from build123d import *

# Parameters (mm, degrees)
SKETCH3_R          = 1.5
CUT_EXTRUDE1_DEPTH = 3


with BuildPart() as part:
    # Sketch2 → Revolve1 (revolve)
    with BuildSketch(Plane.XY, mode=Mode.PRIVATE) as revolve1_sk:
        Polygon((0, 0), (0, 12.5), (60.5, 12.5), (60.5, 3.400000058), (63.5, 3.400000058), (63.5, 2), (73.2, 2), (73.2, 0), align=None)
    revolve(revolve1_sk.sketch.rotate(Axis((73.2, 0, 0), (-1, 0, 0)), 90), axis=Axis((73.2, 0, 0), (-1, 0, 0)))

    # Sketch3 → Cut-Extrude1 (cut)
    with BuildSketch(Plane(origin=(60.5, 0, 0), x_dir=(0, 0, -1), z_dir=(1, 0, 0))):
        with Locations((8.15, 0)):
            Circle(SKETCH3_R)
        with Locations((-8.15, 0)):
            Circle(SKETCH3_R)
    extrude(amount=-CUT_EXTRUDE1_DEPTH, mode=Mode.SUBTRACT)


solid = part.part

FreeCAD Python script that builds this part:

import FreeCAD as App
import Part
import Sketcher
from FreeCAD import Vector


def add_polygon(sketch, points):
    """Adds a closed chain of lines whose ends are joined by coincident constraints."""
    first, n = sketch.GeometryCount, len(points)
    for a, b in zip(points, points[1:] + points[:1]):
        sketch.addGeometry(Part.LineSegment(App.Vector(*a, 0), App.Vector(*b, 0)), False)
    for i in range(n):
        sketch.addConstraint(Sketcher.Constraint("Coincident", first + i, 2, first + (i + 1) % n, 1))

doc = App.newDocument("Part")
body = doc.addObject("PartDesign::Body", "Body")

sketch1 = doc.addObject("Sketcher::SketchObject", "Sketch")
body.addObject(sketch1)
sketch1.AttachmentSupport = (doc.XY_Plane, [""])
sketch1.MapMode = "FlatFace"
add_polygon(sketch1, [(0, 12.5), (0, 0), (73.2, 0), (73.2, 2), (63.5, 2), (63.5, 3.4), (60.5, 3.4), (60.5, 12.5)])
sketch1.addConstraint(Sketcher.Constraint("Vertical", 0))
sketch1.addConstraint(Sketcher.Constraint("Horizontal", 1))
sketch1.addConstraint(Sketcher.Constraint("Vertical", 2))
sketch1.addConstraint(Sketcher.Constraint("Horizontal", 3))
sketch1.addConstraint(Sketcher.Constraint("Vertical", 4))
sketch1.addConstraint(Sketcher.Constraint("Horizontal", 5))
sketch1.addConstraint(Sketcher.Constraint("Vertical", 6))
sketch1.addConstraint(Sketcher.Constraint("Horizontal", 7))
sketch1.addConstraint(Sketcher.Constraint("Coincident", 0, 2, -1, 1))
sketch1.addConstraint(Sketcher.Constraint("DistanceX", 5, 2, 5, 1, 3.0))
sketch1.addConstraint(Sketcher.Constraint("DistanceY", 2, 1, 2, 2, 2.0))
sketch1.addConstraint(Sketcher.Constraint("DistanceX", 1, 1, 1, 2, 73.2))
sketch1.addConstraint(Sketcher.Constraint("DistanceX", 3, 2, 3, 1, 9.7))
sketch1.addConstraint(Sketcher.Constraint("DistanceY", 0, 2, 0, 1, 12.5))
sketch1.addConstraint(Sketcher.Constraint("DistanceY", 4, 1, 4, 2, 1.4))
revolution = doc.addObject("PartDesign::Revolution", "Revolution")
body.addObject(revolution)
revolution.Profile = sketch1
revolution.ReferenceAxis = (sketch1, ["H_Axis"])
revolution.Angle = 360

sketch2 = doc.addObject("Sketcher::SketchObject", "Sketch001")
body.addObject(sketch2)
sketch2.AttachmentSupport = (doc.YZ_Plane, [""])
sketch2.MapMode = "FlatFace"
sketch2.AttachmentOffset = App.Placement(Vector(0, 0, 60.5), App.Rotation())
sketch2.addGeometry(Part.Circle(Vector(0, -8.15, 0), Vector(0, 0, 1), 1.5), False)
sketch2.addGeometry(Part.Circle(Vector(0, 8.15, 0), Vector(0, 0, 1), 1.5), False)
sketch2.addConstraint(Sketcher.Constraint("Equal", 0, 1))
sketch2.addConstraint(Sketcher.Constraint("Symmetric", 0, 3, 1, 3, -1, 1))
sketch2.addConstraint(Sketcher.Constraint("PointOnObject", 0, 3, -2))
sketch2.addConstraint(Sketcher.Constraint("Diameter", 0, 3.0))
sketch2.addConstraint(Sketcher.Constraint("DistanceY", 0, 3, 1, 3, 16.3))
pocket1 = doc.addObject("PartDesign::Pocket", "Pocket")
body.addObject(pocket1)
pocket1.Profile = sketch2
pocket1.Length = 3

doc.recompute()
